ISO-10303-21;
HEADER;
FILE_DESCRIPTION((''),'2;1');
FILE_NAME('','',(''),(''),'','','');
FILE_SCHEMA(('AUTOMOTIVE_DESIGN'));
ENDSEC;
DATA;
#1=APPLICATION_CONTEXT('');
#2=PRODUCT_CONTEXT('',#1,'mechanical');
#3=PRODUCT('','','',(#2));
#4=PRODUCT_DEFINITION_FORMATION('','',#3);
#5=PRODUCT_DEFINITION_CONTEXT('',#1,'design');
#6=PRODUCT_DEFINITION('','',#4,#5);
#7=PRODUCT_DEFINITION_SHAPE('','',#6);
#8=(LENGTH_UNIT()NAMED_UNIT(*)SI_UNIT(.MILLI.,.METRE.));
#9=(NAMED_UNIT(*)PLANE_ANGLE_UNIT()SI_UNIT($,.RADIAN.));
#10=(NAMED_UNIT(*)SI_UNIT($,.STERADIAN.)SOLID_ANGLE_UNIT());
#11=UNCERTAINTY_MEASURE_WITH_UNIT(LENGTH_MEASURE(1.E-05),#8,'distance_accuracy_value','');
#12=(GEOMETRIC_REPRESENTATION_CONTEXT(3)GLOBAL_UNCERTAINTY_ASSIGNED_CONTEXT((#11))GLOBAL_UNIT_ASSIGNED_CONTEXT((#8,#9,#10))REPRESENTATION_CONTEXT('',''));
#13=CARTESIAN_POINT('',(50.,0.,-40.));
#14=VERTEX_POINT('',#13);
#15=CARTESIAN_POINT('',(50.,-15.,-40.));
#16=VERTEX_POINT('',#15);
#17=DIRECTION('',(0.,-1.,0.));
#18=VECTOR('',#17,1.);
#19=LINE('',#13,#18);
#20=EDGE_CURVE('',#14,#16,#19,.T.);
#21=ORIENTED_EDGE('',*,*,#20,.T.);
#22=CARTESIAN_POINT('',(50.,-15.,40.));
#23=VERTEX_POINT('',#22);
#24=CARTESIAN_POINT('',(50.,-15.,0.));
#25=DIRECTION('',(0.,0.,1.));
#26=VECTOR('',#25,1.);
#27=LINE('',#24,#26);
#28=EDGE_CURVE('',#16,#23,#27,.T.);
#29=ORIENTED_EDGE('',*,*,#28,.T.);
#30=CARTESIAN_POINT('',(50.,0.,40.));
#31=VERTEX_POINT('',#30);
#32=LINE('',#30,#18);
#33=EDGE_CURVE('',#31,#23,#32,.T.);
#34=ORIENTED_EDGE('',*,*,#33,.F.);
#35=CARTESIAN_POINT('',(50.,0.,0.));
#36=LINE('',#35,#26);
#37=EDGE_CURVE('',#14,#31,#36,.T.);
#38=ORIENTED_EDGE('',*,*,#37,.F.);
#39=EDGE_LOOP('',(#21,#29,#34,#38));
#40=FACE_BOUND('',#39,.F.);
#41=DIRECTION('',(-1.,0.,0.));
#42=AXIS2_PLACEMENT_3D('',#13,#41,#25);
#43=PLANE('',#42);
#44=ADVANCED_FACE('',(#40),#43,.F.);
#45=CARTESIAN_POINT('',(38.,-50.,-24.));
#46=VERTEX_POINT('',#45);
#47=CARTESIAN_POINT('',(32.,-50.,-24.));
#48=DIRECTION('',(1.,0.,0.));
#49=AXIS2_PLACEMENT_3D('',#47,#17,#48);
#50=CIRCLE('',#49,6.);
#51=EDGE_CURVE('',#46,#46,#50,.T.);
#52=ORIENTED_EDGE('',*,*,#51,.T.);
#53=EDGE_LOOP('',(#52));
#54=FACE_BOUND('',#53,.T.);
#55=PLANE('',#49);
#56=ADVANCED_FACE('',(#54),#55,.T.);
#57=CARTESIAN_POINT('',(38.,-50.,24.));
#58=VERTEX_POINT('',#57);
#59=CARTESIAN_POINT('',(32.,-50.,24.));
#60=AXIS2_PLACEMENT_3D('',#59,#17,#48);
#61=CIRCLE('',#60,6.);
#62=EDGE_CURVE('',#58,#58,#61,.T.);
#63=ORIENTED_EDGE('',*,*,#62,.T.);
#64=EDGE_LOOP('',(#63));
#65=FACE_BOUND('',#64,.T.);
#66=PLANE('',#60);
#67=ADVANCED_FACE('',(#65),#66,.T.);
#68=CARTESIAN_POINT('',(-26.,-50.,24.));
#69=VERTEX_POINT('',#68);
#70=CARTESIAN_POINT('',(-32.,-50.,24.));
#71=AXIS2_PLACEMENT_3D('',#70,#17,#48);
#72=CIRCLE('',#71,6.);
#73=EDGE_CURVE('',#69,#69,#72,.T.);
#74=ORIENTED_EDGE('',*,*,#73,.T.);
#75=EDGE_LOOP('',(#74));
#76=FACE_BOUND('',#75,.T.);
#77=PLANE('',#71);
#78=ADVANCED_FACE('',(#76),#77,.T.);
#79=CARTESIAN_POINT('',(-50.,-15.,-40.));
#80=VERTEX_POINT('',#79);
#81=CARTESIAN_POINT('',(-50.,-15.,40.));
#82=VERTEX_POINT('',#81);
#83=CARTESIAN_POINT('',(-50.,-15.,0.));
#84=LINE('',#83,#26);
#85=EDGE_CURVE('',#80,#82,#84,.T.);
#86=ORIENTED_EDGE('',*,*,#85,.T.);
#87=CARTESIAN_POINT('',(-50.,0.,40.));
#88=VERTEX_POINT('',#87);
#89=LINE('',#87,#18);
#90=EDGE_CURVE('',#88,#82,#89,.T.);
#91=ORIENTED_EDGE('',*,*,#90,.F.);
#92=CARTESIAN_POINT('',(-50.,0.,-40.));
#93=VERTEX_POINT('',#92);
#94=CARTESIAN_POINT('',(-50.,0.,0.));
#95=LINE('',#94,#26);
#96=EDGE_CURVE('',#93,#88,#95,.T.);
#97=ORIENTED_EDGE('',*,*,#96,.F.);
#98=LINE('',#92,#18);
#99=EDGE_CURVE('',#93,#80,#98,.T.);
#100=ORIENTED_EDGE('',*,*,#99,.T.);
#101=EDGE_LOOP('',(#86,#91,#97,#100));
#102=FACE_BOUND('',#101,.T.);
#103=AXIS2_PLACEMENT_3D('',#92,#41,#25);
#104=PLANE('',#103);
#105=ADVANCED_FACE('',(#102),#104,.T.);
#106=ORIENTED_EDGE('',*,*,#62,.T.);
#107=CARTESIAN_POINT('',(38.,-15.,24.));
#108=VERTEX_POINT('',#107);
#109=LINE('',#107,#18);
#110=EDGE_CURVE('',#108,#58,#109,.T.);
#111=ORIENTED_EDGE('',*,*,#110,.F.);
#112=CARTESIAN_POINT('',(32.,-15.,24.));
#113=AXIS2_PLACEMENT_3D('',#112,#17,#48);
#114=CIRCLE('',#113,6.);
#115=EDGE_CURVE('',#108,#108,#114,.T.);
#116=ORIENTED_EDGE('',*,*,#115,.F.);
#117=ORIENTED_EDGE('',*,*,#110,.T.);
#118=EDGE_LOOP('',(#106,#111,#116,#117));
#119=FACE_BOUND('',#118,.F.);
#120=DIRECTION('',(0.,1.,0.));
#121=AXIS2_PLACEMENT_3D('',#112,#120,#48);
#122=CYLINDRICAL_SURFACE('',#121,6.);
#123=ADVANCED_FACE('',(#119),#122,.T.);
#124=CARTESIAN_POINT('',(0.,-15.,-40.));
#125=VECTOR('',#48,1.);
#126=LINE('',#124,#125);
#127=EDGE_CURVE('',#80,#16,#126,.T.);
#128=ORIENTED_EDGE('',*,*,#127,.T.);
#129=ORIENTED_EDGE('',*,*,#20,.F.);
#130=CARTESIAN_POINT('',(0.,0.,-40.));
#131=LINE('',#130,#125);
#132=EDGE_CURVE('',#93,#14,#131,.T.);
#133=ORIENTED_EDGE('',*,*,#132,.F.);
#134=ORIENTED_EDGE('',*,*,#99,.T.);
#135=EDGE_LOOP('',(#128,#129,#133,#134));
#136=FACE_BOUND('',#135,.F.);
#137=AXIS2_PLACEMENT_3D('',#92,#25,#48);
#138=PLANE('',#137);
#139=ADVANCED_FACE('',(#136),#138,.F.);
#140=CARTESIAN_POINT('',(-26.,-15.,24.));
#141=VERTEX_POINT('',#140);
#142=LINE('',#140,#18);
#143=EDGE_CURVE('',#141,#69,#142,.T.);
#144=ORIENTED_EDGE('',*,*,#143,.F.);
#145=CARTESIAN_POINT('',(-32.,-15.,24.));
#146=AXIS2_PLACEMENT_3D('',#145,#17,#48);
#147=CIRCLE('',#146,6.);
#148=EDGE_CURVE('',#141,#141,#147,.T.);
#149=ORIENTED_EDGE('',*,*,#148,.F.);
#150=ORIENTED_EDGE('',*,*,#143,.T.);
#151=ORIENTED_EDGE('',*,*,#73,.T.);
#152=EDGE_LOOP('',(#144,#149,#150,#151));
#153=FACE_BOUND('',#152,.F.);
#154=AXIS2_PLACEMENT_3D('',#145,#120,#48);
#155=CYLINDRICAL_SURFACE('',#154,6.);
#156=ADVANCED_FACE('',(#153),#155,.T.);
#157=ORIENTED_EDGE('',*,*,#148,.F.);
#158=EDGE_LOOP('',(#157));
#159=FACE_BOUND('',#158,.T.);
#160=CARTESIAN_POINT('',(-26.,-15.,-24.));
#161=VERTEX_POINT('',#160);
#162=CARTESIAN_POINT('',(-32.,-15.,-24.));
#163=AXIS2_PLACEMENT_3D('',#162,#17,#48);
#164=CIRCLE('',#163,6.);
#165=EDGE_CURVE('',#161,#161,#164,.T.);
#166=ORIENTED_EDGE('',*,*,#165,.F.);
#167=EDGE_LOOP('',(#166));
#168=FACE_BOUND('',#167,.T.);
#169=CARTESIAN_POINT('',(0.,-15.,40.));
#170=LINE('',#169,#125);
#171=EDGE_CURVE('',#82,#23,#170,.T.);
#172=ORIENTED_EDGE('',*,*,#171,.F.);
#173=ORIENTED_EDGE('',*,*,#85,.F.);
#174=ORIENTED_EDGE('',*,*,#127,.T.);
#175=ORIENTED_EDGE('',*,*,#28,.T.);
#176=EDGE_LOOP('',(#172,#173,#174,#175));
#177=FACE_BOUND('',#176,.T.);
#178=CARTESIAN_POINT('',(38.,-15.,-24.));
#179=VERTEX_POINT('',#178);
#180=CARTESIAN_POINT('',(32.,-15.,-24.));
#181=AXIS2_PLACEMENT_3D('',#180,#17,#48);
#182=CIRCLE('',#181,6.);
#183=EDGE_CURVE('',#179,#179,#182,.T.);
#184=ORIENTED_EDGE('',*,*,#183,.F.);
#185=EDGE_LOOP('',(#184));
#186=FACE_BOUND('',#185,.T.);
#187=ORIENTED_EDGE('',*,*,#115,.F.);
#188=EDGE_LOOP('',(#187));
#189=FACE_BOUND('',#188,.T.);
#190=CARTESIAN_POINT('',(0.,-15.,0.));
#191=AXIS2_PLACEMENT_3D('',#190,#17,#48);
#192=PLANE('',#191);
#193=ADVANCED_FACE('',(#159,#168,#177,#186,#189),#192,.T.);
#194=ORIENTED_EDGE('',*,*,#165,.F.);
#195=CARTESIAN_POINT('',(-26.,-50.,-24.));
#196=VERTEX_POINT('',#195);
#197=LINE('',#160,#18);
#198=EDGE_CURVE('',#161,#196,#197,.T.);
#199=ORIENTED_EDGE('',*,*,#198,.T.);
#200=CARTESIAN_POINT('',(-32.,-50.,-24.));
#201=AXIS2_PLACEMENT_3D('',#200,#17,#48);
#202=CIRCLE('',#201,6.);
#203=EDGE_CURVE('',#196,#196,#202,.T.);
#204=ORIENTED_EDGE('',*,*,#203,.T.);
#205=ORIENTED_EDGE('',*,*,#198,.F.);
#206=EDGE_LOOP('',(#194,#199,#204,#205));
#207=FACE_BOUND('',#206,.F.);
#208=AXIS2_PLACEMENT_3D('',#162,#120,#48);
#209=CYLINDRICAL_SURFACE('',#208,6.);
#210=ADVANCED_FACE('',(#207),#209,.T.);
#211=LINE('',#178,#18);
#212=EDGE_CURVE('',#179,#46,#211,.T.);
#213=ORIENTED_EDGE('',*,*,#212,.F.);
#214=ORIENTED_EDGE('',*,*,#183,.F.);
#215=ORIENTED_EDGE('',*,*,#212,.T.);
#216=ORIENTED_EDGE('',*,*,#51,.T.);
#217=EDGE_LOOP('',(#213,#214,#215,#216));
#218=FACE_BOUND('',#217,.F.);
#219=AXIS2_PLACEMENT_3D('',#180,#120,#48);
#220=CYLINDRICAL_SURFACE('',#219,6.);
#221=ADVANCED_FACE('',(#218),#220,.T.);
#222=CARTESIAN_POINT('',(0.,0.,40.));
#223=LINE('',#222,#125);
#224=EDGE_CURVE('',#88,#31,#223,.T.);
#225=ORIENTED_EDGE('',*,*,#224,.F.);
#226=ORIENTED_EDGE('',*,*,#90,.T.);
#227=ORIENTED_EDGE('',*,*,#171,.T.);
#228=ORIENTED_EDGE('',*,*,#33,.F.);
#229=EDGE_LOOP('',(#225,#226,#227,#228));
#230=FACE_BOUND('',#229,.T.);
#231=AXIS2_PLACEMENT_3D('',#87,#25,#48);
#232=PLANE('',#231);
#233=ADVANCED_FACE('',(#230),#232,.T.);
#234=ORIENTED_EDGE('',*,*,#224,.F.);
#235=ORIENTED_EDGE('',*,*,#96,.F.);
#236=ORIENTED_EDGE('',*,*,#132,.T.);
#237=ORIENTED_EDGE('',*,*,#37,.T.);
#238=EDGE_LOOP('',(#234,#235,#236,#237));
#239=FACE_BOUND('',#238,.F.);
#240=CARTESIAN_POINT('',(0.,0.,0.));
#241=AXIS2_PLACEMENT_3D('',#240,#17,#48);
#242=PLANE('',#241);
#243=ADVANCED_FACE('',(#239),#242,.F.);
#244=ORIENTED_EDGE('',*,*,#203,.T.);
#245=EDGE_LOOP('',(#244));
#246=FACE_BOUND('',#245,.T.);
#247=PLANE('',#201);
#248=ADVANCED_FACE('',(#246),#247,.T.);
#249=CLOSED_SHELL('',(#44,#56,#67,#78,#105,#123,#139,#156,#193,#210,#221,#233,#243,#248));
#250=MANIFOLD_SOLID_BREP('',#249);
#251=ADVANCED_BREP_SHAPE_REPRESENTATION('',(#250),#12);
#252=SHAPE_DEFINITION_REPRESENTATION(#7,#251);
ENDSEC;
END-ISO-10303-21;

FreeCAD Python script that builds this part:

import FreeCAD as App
import Part
import Sketcher
from FreeCAD import Vector

doc = App.newDocument("Part")
params = doc.addObject("Spreadsheet::Sheet", "Params")
for row, (alias, value) in enumerate([
    ("sketch1_width", "100 mm"),
    ("sketch1_height", "80 mm"),
    ("pad1_length", "15 mm"),
    ("sketch2_diameter", "12 mm"),
    ("pad2_length", "35 mm"),
], start=1):
    params.set(f"A{row}", alias)
    params.set(f"B{row}", "=" + value)
    params.setAlias(f"B{row}", alias)

body = doc.addObject("PartDesign::Body", "Body")

# Sketch on XZ plane
sketch1 = doc.addObject("Sketcher::SketchObject", "Sketch")
body.addObject(sketch1)
sketch1.AttachmentSupport = (doc.XZ_Plane, [""])
sketch1.MapMode = "FlatFace"
sketch1.addGeometry(Part.LineSegment(Vector(-50, 40, 0), Vector(-50, -40, 0)), False)
sketch1.addGeometry(Part.LineSegment(Vector(-50, -40, 0), Vector(50, -40, 0)), False)
sketch1.addGeometry(Part.LineSegment(Vector(50, -40, 0), Vector(50, 40, 0)), False)
sketch1.addGeometry(Part.LineSegment(Vector(50, 40, 0), Vector(-50, 40, 0)), False)
sketch1.addConstraint(Sketcher.Constraint("Coincident", 0, 2, 1, 1))
sketch1.addConstraint(Sketcher.Constraint("Coincident", 1, 2, 2, 1))
sketch1.addConstraint(Sketcher.Constraint("Coincident", 2, 2, 3, 1))
sketch1.addConstraint(Sketcher.Constraint("Coincident", 3, 2, 0, 1))
sketch1.addConstraint(Sketcher.Constraint("Vertical", 0))
sketch1.addConstraint(Sketcher.Constraint("Horizontal", 1))
sketch1.addConstraint(Sketcher.Constraint("Vertical", 2))
sketch1.addConstraint(Sketcher.Constraint("Horizontal", 3))
sketch1.addConstraint(Sketcher.Constraint("Symmetric", 0, 2, 2, 2, -1, 1))
sketch1.addConstraint(Sketcher.Constraint("DistanceX", 1, 1, 1, 2, 100.0))
sketch1.addConstraint(Sketcher.Constraint("DistanceY", 0, 2, 0, 1, 80.0))
sketch1.setExpression("Constraints[9]", "Params.sketch1_width")
sketch1.setExpression("Constraints[10]", "Params.sketch1_height")
pad1 = doc.addObject("PartDesign::Pad", "Pad")
body.addObject(pad1)
pad1.Profile = sketch1
pad1.setExpression("Length", "Params.pad1_length")

# Sketch on XZ plane
sketch2 = doc.addObject("Sketcher::SketchObject", "Sketch001")
body.addObject(sketch2)
sketch2.AttachmentSupport = (doc.XZ_Plane, [""])
sketch2.MapMode = "FlatFace"
sketch2.AttachmentOffset = App.Placement(Vector(0, 0, 15), App.Rotation())
sketch2.addGeometry(Part.Circle(Vector(-32, -24, 0), Vector(0, 0, 1), 6), False)
sketch2.addGeometry(Part.Circle(Vector(-32, 24, 0), Vector(0, 0, 1), 6), False)
sketch2.addGeometry(Part.Circle(Vector(32, 24, 0), Vector(0, 0, 1), 6), False)
sketch2.addGeometry(Part.Circle(Vector(32, -24, 0), Vector(0, 0, 1), 6), False)
sketch2.addConstraint(Sketcher.Constraint("Equal", 0, 1))
sketch2.addConstraint(Sketcher.Constraint("Equal", 1, 2))
sketch2.addConstraint(Sketcher.Constraint("Equal", 2, 3))
sketch2.addConstraint(Sketcher.Constraint("Symmetric", 0, 3, 2, 3, -1, 1))
sketch2.addConstraint(Sketcher.Constraint("Symmetric", 1, 3, 3, 3, -1, 1))
sketch2.addConstraint(Sketcher.Constraint("Symmetric", 1, 3, 2, 3, -2))
sketch2.addConstraint(Sketcher.Constraint("Diameter", 0, 12.0))
sketch2.addConstraint(Sketcher.Constraint("DistanceX", 0, 3, -1, 1, 32.0))
sketch2.addConstraint(Sketcher.Constraint("DistanceY", 0, 3, -1, 1, 24.0))
sketch2.setExpression("Constraints[6]", "Params.sketch2_diameter")
pad2 = doc.addObject("PartDesign::Pad", "Pad001")
body.addObject(pad2)
pad2.Profile = sketch2
pad2.setExpression("Length", "Params.pad2_length")

doc.recompute()
